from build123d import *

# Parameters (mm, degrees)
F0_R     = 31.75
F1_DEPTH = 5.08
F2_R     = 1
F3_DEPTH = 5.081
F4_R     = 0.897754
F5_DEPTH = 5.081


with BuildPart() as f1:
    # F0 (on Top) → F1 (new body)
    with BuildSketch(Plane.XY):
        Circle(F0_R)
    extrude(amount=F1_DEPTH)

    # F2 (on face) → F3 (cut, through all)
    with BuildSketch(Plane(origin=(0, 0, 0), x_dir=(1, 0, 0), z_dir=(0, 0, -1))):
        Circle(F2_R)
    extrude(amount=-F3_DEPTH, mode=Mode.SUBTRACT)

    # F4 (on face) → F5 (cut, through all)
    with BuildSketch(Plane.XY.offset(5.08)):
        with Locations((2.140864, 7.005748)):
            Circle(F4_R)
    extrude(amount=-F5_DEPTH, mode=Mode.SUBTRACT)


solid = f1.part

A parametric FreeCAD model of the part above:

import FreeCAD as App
import Part
import Sketcher
Q = App.Units.Quantity

doc = App.newDocument("Part")
body = doc.addObject("PartDesign::Body", "Body")

# Sketch on XY plane
sketch1 = body.newObject("Sketcher::SketchObject", "Sketch")
sketch1.AttachmentSupport = (doc.getObject("XY_Plane"), [""])
sketch1.MapMode = "FlatFace"
sketch1.addGeometry(Part.Circle(App.Vector(0, 0, 0), App.Vector(0, 0, 1), 32), False)
sketch1.addConstraint([
    Sketcher.Constraint("Coincident", 0, 3, -1, 1),
    Sketcher.Constraint("Diameter", 0, Q("2.5 in")),
])
pad1 = body.newObject("PartDesign::Pad", "Pad")
pad1.Profile = sketch1
pad1.Length = Q("0.2 in")

# Sketch on XY plane
sketch2 = body.newObject("Sketcher::SketchObject", "Sketch001")
sketch2.AttachmentSupport = (doc.getObject("XY_Plane"), [""])
sketch2.MapMode = "FlatFace"
sketch2.addGeometry(Part.Circle(App.Vector(0, 0, 0), App.Vector(0, 0, 1), 1), False)
sketch2.addConstraint([
    Sketcher.Constraint("Coincident", 0, 3, -1, 1),
    Sketcher.Constraint("Diameter", 0, Q("2 mm")),
])
pocket1 = body.newObject("PartDesign::Pocket", "Pocket")
pocket1.Profile = sketch2
pocket1.Type = "ThroughAll"
pocket1.Reversed = True

# Sketch on XY plane
sketch3 = body.newObject("Sketcher::SketchObject", "Sketch002")
sketch3.AttachmentSupport = (doc.getObject("XY_Plane"), [""])
sketch3.MapMode = "FlatFace"
sketch3.AttachmentOffset = App.Placement(App.Vector(0, 0, 0.2 * 25.4), App.Rotation())
sketch3.addGeometry(Part.Circle(App.Vector(2.1, 7, 0), App.Vector(0, 0, 1), 0.9), False)
sketch3.addConstraint([
    Sketcher.Constraint("Diameter", 0, Q("1.795508 mm")),
    Sketcher.Constraint("DistanceX", -1, 1, 0, 3, Q("2.140864 mm")),
    Sketcher.Constraint("DistanceY", -1, 1, 0, 3, Q("7.005748 mm")),
])
pocket2 = body.newObject("PartDesign::Pocket", "Pocket001")
pocket2.Profile = sketch3
pocket2.Type = "ThroughAll"

doc.recompute()
